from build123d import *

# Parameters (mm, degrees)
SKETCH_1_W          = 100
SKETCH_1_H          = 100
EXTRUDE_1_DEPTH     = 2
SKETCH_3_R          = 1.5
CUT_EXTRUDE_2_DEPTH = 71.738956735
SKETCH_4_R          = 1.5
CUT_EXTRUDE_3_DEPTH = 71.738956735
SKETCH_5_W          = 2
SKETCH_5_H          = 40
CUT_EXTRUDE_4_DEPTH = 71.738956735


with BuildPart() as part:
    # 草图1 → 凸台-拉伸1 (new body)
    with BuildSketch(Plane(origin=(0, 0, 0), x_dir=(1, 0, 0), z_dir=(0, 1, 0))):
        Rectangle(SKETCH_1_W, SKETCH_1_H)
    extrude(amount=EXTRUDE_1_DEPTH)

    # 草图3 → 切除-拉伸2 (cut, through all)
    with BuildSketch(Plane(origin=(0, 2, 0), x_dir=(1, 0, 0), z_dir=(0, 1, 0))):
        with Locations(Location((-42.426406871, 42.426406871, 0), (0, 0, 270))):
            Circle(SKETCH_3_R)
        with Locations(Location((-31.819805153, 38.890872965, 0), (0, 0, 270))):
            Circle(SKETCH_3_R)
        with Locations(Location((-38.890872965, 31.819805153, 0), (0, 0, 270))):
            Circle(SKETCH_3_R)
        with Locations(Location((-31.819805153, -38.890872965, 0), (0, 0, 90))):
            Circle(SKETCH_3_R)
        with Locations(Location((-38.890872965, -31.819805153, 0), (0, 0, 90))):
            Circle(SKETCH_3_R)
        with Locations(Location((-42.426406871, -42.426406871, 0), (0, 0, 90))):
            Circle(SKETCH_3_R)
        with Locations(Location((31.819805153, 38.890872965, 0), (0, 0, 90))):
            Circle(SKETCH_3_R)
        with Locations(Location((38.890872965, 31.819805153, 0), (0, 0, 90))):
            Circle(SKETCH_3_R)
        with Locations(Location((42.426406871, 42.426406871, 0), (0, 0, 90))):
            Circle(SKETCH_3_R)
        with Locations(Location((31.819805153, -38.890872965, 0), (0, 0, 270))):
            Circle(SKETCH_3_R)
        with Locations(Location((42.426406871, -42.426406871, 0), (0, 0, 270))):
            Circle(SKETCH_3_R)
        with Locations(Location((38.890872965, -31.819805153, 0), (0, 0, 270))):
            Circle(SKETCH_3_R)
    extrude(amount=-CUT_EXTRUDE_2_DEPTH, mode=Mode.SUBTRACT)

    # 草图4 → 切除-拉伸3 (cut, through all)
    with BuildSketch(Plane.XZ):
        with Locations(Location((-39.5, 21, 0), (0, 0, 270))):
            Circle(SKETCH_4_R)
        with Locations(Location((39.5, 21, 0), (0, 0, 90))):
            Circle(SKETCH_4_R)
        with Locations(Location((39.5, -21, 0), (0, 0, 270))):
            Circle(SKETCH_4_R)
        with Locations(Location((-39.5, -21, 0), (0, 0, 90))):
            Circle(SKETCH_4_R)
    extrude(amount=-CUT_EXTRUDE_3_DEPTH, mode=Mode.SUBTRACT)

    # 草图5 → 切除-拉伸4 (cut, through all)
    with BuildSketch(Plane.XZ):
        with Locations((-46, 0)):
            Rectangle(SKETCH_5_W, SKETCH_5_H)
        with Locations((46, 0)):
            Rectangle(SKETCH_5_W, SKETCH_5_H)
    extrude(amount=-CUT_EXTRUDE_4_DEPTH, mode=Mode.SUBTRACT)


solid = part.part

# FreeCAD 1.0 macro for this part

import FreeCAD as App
import Part
import Sketcher
from FreeCAD import Vector
Q = App.Units.Quantity

doc = App.newDocument("Part")
body = doc.addObject("PartDesign::Body", "Body")

# Sketch on XZ plane
sketch1 = body.newObject("Sketcher::SketchObject", "Sketch")
sketch1.AttachmentSupport = (doc.getObject("XZ_Plane"), [""])
sketch1.MapMode = "FlatFace"
sketch1.addGeometry(Part.LineSegment(Vector(-50, -50, 0), Vector(-50, 50, 0)), False)
sketch1.addGeometry(Part.LineSegment(Vector(-50, 50, 0), Vector(50, 50, 0)), False)
sketch1.addGeometry(Part.LineSegment(Vector(50, 50, 0), Vector(50, -50, 0)), False)
sketch1.addGeometry(Part.LineSegment(Vector(50, -50, 0), Vector(-50, -50, 0)), False)
sketch1.addConstraint(Sketcher.Constraint("Coincident", 0, 2, 1, 1))
sketch1.addConstraint(Sketcher.Constraint("Coincident", 1, 2, 2, 1))
sketch1.addConstraint(Sketcher.Constraint("Coincident", 2, 2, 3, 1))
sketch1.addConstraint(Sketcher.Constraint("Coincident", 3, 2, 0, 1))
sketch1.addConstraint(Sketcher.Constraint("Vertical", 0))
sketch1.addConstraint(Sketcher.Constraint("Horizontal", 1))
sketch1.addConstraint(Sketcher.Constraint("Vertical", 2))
sketch1.addConstraint(Sketcher.Constraint("Horizontal", 3))
sketch1.addConstraint(Sketcher.Constraint("Symmetric", 0, 2, 2, 2, -1, 1))
sketch1.addConstraint(Sketcher.Constraint("Equal", 3, 0))
sketch1.addConstraint(Sketcher.Constraint("DistanceX", 1, 1, 1, 2, Q("100 mm")))
pad1 = body.newObject("PartDesign::Pad", "Pad")
pad1.Profile = sketch1
pad1.Length = 2
pad1.Reversed = True

# Sketch on XZ plane
sketch2 = body.newObject("Sketcher::SketchObject", "Sketch001")
sketch2.AttachmentSupport = (doc.getObject("XZ_Plane"), [""])
sketch2.MapMode = "FlatFace"
sketch2.AttachmentOffset = App.Placement(Vector(0, 0, -2), App.Rotation())
sketch2.addGeometry(Part.Circle(Vector(-42.4, -42.4, 0), Vector(0, 0, 1), 1.5), False)
sketch2.addGeometry(Part.Circle(Vector(-31.8, -38.9, 0), Vector(0, 0, 1), 1.5), False)
sketch2.addGeometry(Part.Circle(Vector(-38.9, -31.8, 0), Vector(0, 0, 1), 1.5), False)
sketch2.addGeometry(Part.Circle(Vector(-31.8, 38.9, 0), Vector(0, 0, 1), 1.5), False)
sketch2.addGeometry(Part.Circle(Vector(-38.9, 31.8, 0), Vector(0, 0, 1), 1.5), False)
sketch2.addGeometry(Part.Circle(Vector(-42.4, 42.4, 0), Vector(0, 0, 1), 1.5), False)
sketch2.addGeometry(Part.Circle(Vector(31.8, -38.9, 0), Vector(0, 0, 1), 1.5), False)
sketch2.addGeometry(Part.Circle(Vector(38.9, -31.8, 0), Vector(0, 0, 1), 1.5), False)
sketch2.addGeometry(Part.Circle(Vector(42.4, -42.4, 0), Vector(0, 0, 1), 1.5), False)
sketch2.addGeometry(Part.Circle(Vector(31.8, 38.9, 0), Vector(0, 0, 1), 1.5), False)
sketch2.addGeometry(Part.Circle(Vector(42.4, 42.4, 0), Vector(0, 0, 1), 1.5), False)
sketch2.addGeometry(Part.Circle(Vector(38.9, 31.8, 0), Vector(0, 0, 1), 1.5), False)
sketch2.addConstraint(Sketcher.Constraint("Equal", 0, 1))
sketch2.addConstraint(Sketcher.Constraint("Equal", 1, 2))
sketch2.addConstraint(Sketcher.Constraint("Equal", 2, 3))
sketch2.addConstraint(Sketcher.Constraint("Equal", 3, 4))
sketch2.addConstraint(Sketcher.Constraint("Equal", 4, 5))
sketch2.addConstraint(Sketcher.Constraint("Equal", 5, 6))
sketch2.addConstraint(Sketcher.Constraint("Equal", 6, 7))
sketch2.addConstraint(Sketcher.Constraint("Equal", 7, 8))
sketch2.addConstraint(Sketcher.Constraint("Equal", 8, 9))
sketch2.addConstraint(Sketcher.Constraint("Equal", 9, 10))
sketch2.addConstraint(Sketcher.Constraint("Equal", 10, 11))
sketch2.addConstraint(Sketcher.Constraint("Symmetric", 3, 3, 6, 3, -1, 1))
sketch2.addConstraint(Sketcher.Constraint("Symmetric", 4, 3, 7, 3, -1, 1))
sketch2.addConstraint(Sketcher.Constraint("Symmetric", 5, 3, 8, 3, -1, 1))
sketch2.addConstraint(Sketcher.Constraint("Symmetric", 1, 3, 9, 3, -1, 1))
sketch2.addConstraint(Sketcher.Constraint("Symmetric", 0, 3, 10, 3, -1, 1))
sketch2.addConstraint(Sketcher.Constraint("Symmetric", 2, 3, 11, 3, -1, 1))
sketch2.addConstraint(Sketcher.Constraint("Symmetric", 1, 3, 6, 3, -2))
sketch2.addConstraint(Sketcher.Constraint("Symmetric", 2, 3, 7, 3, -2))
sketch2.addConstraint(Sketcher.Constraint("Symmetric", 0, 3, 8, 3, -2))
sketch2.addConstraint(Sketcher.Constraint("Diameter", 0, Q("3 mm")))
sketch2.addConstraint(Sketcher.Constraint("DistanceX", 0, 3, 1, 3, Q("10.606602 mm")))
sketch2.addConstraint(Sketcher.Constraint("DistanceY", 0, 3, 2, 3, Q("10.606602 mm")))
sketch2.addConstraint(Sketcher.Constraint("DistanceY", 2, 3, 3, 3, Q("70.710678 mm")))
sketch2.addConstraint(Sketcher.Constraint("DistanceY", 2, 3, 4, 3, Q("63.63961 mm")))
sketch2.addConstraint(Sketcher.Constraint("DistanceX", 1, 3, 6, 3, Q("63.63961 mm")))
sketch2.addConstraint(Sketcher.Constraint("DistanceX", 2, 3, 6, 3, Q("70.710678 mm")))
pocket1 = body.newObject("PartDesign::Pocket", "Pocket")
pocket1.Profile = sketch2
pocket1.Type = "ThroughAll"
pocket1.Reversed = True

# Sketch on XZ plane
sketch3 = body.newObject("Sketcher::SketchObject", "Sketch002")
sketch3.AttachmentSupport = (doc.getObject("XZ_Plane"), [""])
sketch3.MapMode = "FlatFace"
sketch3.addGeometry(Part.Circle(Vector(-39.5, 21, 0), Vector(0, 0, 1), 1.5), False)
sketch3.addGeometry(Part.Circle(Vector(39.5, 21, 0), Vector(0, 0, 1), 1.5), False)
sketch3.addGeometry(Part.Circle(Vector(39.5, -21, 0), Vector(0, 0, 1), 1.5), False)
sketch3.addGeometry(Part.Circle(Vector(-39.5, -21, 0), Vector(0, 0, 1), 1.5), False)
sketch3.addConstraint(Sketcher.Constraint("Equal", 0, 1))
sketch3.addConstraint(Sketcher.Constraint("Equal", 1, 2))
sketch3.addConstraint(Sketcher.Constraint("Equal", 2, 3))
sketch3.addConstraint(Sketcher.Constraint("Symmetric", 0, 3, 2, 3, -1, 1))
sketch3.addConstraint(Sketcher.Constraint("Symmetric", 1, 3, 3, 3, -1, 1))
sketch3.addConstraint(Sketcher.Constraint("Symmetric", 0, 3, 1, 3, -2))
sketch3.addConstraint(Sketcher.Constraint("Diameter", 0, Q("3 mm")))
sketch3.addConstraint(Sketcher.Constraint("DistanceY", -1, 1, 0, 3, Q("21 mm")))
sketch3.addConstraint(Sketcher.Constraint("DistanceX", 0, 3, 1, 3, Q("79 mm")))
pocket2 = body.newObject("PartDesign::Pocket", "Pocket001")
pocket2.Profile = sketch3
pocket2.Type = "ThroughAll"

# Sketch on XZ plane
sketch4 = body.newObject("Sketcher::SketchObject", "Sketch003")
sketch4.AttachmentSupport = (doc.getObject("XZ_Plane"), [""])
sketch4.MapMode = "FlatFace"
sketch4.addGeometry(Part.LineSegment(Vector(-47, 20, 0), Vector(-47, -20, 0)), False)
sketch4.addGeometry(Part.LineSegment(Vector(-47, -20, 0), Vector(-45, -20, 0)), False)
sketch4.addGeometry(Part.LineSegment(Vector(-45, -20, 0), Vector(-45, 20, 0)), False)
sketch4.addGeometry(Part.LineSegment(Vector(-45, 20, 0), Vector(-47, 20, 0)), False)
sketch4.addGeometry(Part.LineSegment(Vector(45, 20, 0), Vector(45, -20, 0)), False)
sketch4.addGeometry(Part.LineSegment(Vector(45, -20, 0), Vector(47, -20, 0)), False)
sketch4.addGeometry(Part.LineSegment(Vector(47, -20, 0), Vector(47, 20, 0)), False)
sketch4.addGeometry(Part.LineSegment(Vector(47, 20, 0), Vector(45, 20, 0)), False)
sketch4.addConstraint(Sketcher.Constraint("Coincident", 0, 2, 1, 1))
sketch4.addConstraint(Sketcher.Constraint("Coincident", 1, 2, 2, 1))
sketch4.addConstraint(Sketcher.Constraint("Coincident", 2, 2, 3, 1))
sketch4.addConstraint(Sketcher.Constraint("Coincident", 3, 2, 0, 1))
sketch4.addConstraint(Sketcher.Constraint("Coincident", 4, 2, 5, 1))
sketch4.addConstraint(Sketcher.Constraint("Coincident", 5, 2, 6, 1))
sketch4.addConstraint(Sketcher.Constraint("Coincident", 6, 2, 7, 1))
sketch4.addConstraint(Sketcher.Constraint("Coincident", 7, 2, 4, 1))
sketch4.addConstraint(Sketcher.Constraint("Vertical", 0))
sketch4.addConstraint(Sketcher.Constraint("Horizontal", 1))
sketch4.addConstraint(Sketcher.Constraint("Vertical", 2))
sketch4.addConstraint(Sketcher.Constraint("Horizontal", 3))
sketch4.addConstraint(Sketcher.Constraint("Vertical", 4))
sketch4.addConstraint(Sketcher.Constraint("Horizontal", 5))
sketch4.addConstraint(Sketcher.Constraint("Vertical", 6))
sketch4.addConstraint(Sketcher.Constraint("Horizontal", 7))
sketch4.addConstraint(Sketcher.Constraint("Symmetric", 2, 2, 4, 2, -1, 1))
sketch4.addConstraint(Sketcher.Constraint("Symmetric", 0, 2, 6, 2, -1, 1))
sketch4.addConstraint(Sketcher.Constraint("Horizontal", 1, 2, 4, 2))
sketch4.addConstraint(Sketcher.Constraint("DistanceX", 1, 1, 1, 2, Q("2 mm")))
sketch4.addConstraint(Sketcher.Constraint("DistanceY", 0, 2, 0, 1, Q("40 mm")))
sketch4.addConstraint(Sketcher.Constraint("DistanceX", 0, 2, -1, 1, Q("47 mm")))
pocket3 = body.newObject("PartDesign::Pocket", "Pocket002")
pocket3.Profile = sketch4
pocket3.Type = "ThroughAll"

doc.recompute()
